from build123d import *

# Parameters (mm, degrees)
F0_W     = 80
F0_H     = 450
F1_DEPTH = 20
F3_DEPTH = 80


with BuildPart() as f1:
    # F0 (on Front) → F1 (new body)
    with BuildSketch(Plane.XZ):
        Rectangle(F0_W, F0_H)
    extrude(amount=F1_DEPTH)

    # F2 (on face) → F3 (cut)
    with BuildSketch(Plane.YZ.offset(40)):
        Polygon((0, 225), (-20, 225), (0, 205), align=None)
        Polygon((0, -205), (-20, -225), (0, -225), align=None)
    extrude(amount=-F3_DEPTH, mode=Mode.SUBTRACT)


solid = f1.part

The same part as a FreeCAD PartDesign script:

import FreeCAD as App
import Part
import Sketcher

V = App.Vector


def add_polygon(sketch, points):
    """Adds a closed chain of lines whose ends are joined by coincident constraints."""
    first, n = sketch.GeometryCount, len(points)
    for a, b in zip(points, points[1:] + points[:1]):
        sketch.addGeometry(Part.LineSegment(App.Vector(*a, 0), App.Vector(*b, 0)), False)
    for i in range(n):
        sketch.addConstraint(Sketcher.Constraint("Coincident", first + i, 2, first + (i + 1) % n, 1))

doc = App.newDocument("Part")
body = doc.addObject("PartDesign::Body", "Body")

# Sketch on XZ plane
sketch1 = body.newObject("Sketcher::SketchObject", "Sketch")
sketch1.AttachmentSupport = (doc.getObject("XZ_Plane"), [""])
sketch1.MapMode = "FlatFace"
add_polygon(sketch1, [(-40, 225), (-40, -225), (40, -225), (40, 225)])  # lines 0-3
sketch1.addConstraint(Sketcher.Constraint("Vertical", 0))
sketch1.addConstraint(Sketcher.Constraint("Horizontal", 1))
sketch1.addConstraint(Sketcher.Constraint("Vertical", 2))
sketch1.addConstraint(Sketcher.Constraint("Horizontal", 3))
sketch1.addConstraint(Sketcher.Constraint("Symmetric", 0, 2, 2, 2, -1, 1))
sketch1.addConstraint(Sketcher.Constraint("DistanceX", 1, 1, 1, 2, 80.0))
sketch1.addConstraint(Sketcher.Constraint("DistanceY", 0, 2, 0, 1, 450.0))
pad1 = body.newObject("PartDesign::Pad", "Pad")
pad1.Profile = sketch1
pad1.Length = 20

# Sketch on YZ plane
sketch2 = body.newObject("Sketcher::SketchObject", "Sketch001")
sketch2.AttachmentSupport = (doc.getObject("YZ_Plane"), [""])
sketch2.MapMode = "FlatFace"
sketch2.AttachmentOffset = App.Placement(V(0, 0, 40), App.Rotation())
add_polygon(sketch2, [(0, 225), (-20, 225), (0, 205)])  # lines 0-2
add_polygon(sketch2, [(0, -205), (-20, -225), (0, -225)])  # lines 3-5
sketch2.addConstraint(Sketcher.Constraint("Horizontal", 0))
sketch2.addConstraint(Sketcher.Constraint("Vertical", 2))
sketch2.addConstraint(Sketcher.Constraint("Horizontal", 4))
sketch2.addConstraint(Sketcher.Constraint("Vertical", 5))
sketch2.addConstraint(Sketcher.Constraint("Symmetric", 2, 2, 4, 2, -1, 1))
sketch2.addConstraint(Sketcher.Constraint("Symmetric", 1, 2, 5, 2, -1))
sketch2.addConstraint(Sketcher.Constraint("Perpendicular", 1, 3))
sketch2.addConstraint(Sketcher.Constraint("Vertical", 0, 2, 3, 2))
sketch2.addConstraint(Sketcher.Constraint("DistanceX", 0, 2, 0, 1, 20.0))
sketch2.addConstraint(Sketcher.Constraint("DistanceY", -1, 1, 0, 2, 225.0))
pocket1 = body.newObject("PartDesign::Pocket", "Pocket")
pocket1.Profile = sketch2
pocket1.Length = 80

doc.recompute()
